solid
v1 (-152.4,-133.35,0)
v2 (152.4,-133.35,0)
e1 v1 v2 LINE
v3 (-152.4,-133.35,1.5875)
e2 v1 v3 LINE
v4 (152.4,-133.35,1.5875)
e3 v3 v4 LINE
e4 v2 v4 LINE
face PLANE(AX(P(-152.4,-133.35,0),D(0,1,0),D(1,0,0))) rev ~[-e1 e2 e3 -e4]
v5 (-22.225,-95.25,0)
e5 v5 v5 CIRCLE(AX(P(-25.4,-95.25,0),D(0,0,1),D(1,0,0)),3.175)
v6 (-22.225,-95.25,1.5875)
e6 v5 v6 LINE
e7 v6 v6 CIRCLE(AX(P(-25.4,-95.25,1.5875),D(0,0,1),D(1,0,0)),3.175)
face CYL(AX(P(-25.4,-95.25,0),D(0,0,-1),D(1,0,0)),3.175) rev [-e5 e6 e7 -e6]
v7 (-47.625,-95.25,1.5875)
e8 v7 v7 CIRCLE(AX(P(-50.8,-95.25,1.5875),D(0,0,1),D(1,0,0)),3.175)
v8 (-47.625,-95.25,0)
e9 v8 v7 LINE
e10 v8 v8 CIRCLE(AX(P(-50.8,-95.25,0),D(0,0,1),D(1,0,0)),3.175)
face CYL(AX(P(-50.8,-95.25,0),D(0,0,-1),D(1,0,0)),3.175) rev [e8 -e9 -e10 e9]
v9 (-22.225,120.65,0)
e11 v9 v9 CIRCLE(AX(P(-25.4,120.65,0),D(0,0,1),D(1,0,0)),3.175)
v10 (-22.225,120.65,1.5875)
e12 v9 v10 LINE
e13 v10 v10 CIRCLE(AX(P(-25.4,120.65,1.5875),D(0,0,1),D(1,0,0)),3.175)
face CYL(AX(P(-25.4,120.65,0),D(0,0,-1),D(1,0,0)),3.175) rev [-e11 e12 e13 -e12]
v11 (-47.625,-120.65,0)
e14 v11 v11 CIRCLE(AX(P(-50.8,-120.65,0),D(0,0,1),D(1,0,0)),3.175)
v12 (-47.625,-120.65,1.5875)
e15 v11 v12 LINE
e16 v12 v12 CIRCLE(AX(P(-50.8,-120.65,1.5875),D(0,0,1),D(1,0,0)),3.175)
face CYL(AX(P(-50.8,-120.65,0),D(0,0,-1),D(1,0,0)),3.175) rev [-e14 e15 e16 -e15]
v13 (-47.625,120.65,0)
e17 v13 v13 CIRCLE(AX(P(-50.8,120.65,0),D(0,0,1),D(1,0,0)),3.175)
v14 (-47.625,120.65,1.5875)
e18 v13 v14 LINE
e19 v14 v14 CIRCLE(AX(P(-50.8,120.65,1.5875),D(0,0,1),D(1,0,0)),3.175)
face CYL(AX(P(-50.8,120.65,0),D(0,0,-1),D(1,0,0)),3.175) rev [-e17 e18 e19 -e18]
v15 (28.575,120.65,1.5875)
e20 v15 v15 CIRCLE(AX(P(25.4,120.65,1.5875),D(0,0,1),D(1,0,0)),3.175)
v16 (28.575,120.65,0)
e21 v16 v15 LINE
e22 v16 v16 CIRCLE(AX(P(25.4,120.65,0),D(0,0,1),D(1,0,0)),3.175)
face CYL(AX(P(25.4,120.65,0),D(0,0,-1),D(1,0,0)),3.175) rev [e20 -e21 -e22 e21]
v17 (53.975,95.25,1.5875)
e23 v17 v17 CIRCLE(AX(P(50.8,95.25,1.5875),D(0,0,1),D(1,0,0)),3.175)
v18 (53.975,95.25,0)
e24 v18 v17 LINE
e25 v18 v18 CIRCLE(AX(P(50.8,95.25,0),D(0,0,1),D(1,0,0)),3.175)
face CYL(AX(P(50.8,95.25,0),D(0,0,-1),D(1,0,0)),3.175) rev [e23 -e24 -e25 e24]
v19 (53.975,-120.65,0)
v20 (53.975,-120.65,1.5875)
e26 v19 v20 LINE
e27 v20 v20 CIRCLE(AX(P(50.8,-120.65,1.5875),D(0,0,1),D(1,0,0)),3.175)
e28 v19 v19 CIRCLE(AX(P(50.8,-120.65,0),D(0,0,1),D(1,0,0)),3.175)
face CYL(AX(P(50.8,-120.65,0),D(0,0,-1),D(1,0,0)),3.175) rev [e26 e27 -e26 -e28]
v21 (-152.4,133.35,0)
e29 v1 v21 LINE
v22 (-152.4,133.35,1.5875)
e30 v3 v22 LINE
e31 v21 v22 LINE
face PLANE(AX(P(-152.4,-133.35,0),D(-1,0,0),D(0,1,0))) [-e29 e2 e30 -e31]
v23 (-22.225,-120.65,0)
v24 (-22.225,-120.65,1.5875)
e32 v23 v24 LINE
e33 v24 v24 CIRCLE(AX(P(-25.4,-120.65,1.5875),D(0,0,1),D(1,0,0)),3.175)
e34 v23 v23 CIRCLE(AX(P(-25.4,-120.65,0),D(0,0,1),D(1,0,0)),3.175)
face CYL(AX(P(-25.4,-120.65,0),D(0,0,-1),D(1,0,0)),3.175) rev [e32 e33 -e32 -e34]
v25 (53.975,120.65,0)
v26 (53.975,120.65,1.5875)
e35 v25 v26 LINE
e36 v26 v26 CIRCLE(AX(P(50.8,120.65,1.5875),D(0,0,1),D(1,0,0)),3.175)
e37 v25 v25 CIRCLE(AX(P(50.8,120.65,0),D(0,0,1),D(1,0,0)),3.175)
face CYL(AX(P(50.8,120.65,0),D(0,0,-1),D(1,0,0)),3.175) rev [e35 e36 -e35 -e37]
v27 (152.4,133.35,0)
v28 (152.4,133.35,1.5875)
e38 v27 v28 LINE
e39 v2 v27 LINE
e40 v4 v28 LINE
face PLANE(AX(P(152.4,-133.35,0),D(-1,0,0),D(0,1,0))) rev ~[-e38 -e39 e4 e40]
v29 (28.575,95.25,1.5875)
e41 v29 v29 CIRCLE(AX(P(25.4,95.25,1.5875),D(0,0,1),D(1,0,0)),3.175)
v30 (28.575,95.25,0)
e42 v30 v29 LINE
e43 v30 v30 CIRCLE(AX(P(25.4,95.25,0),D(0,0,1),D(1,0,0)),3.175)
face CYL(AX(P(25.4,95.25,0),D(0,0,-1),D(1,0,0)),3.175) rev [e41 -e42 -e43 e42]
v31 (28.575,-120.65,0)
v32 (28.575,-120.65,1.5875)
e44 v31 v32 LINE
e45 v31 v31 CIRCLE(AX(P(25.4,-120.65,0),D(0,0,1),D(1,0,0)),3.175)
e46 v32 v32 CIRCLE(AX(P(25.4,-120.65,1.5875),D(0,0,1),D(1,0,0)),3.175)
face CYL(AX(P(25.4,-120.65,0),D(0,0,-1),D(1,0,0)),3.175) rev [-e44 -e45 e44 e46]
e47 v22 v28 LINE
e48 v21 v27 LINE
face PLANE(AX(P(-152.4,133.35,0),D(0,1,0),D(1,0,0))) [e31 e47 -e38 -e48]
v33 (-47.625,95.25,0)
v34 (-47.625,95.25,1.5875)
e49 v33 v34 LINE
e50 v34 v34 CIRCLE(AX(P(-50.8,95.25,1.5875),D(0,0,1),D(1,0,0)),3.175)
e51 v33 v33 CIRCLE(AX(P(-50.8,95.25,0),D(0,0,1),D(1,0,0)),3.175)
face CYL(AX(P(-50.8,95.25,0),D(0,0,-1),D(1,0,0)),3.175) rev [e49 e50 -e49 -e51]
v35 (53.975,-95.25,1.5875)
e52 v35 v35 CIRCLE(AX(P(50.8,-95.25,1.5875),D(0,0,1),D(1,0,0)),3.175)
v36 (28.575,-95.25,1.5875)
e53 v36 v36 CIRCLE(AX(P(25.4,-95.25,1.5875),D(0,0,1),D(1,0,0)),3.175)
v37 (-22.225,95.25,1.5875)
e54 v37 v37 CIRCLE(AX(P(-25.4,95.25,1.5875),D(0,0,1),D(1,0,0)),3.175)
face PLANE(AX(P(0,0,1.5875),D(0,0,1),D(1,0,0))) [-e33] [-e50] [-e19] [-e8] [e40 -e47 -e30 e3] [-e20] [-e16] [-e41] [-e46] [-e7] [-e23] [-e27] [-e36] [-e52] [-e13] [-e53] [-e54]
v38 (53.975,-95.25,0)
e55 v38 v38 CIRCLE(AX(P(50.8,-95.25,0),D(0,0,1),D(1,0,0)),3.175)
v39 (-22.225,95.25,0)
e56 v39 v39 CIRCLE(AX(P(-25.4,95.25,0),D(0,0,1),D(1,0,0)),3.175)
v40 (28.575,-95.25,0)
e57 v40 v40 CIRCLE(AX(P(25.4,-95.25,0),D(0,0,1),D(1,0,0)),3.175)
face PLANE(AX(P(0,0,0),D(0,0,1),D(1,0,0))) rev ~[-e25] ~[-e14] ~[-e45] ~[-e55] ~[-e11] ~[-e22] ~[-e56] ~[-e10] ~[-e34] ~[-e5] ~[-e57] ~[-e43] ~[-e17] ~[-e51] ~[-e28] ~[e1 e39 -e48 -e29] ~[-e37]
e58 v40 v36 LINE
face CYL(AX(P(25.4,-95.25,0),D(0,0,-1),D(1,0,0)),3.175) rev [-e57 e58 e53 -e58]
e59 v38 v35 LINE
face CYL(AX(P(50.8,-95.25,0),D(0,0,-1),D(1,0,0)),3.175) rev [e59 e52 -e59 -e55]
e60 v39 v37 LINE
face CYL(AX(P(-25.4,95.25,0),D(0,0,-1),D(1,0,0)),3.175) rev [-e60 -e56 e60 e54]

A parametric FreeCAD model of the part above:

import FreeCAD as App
import Part
import Sketcher
from FreeCAD import Vector
Q = App.Units.Quantity


def add_polygon(sketch, points):
    """Adds a closed chain of lines whose ends are joined by coincident constraints."""
    first, n = sketch.GeometryCount, len(points)
    for a, b in zip(points, points[1:] + points[:1]):
        sketch.addGeometry(Part.LineSegment(App.Vector(*a, 0), App.Vector(*b, 0)), False)
    for i in range(n):
        sketch.addConstraint(Sketcher.Constraint("Coincident", first + i, 2, first + (i + 1) % n, 1))

doc = App.newDocument("Part")
body = doc.addObject("PartDesign::Body", "Body")

# Sketch on XY plane
sketch1 = body.newObject("Sketcher::SketchObject", "Sketch")
sketch1.AttachmentSupport = (doc.getObject("XY_Plane"), [""])
sketch1.MapMode = "FlatFace"
add_polygon(sketch1, [(-152.4, 133.35), (-152.4, -133.35), (152.4, -133.35), (152.4, 133.35)])  # lines 0-3
sketch1.addGeometry(Part.Circle(Vector(-50.8, -120.65, 0), Vector(0, 0, 1), 3.175), False)  # 4
sketch1.addGeometry(Part.Circle(Vector(-50.8, -95.25, 0), Vector(0, 0, 1), 3.175), False)  # 5
sketch1.addGeometry(Part.Circle(Vector(-25.4, -120.65, 0), Vector(0, 0, 1), 3.175), False)  # 6
sketch1.addGeometry(Part.Circle(Vector(-25.4, -95.25, 0), Vector(0, 0, 1), 3.175), False)  # 7
sketch1.addGeometry(Part.Circle(Vector(25.4, -120.65, 0), Vector(0, 0, 1), 3.175), False)  # 8
sketch1.addGeometry(Part.Circle(Vector(25.4, -95.25, 0), Vector(0, 0, 1), 3.175), False)  # 9
sketch1.addGeometry(Part.Circle(Vector(50.8, -120.65, 0), Vector(0, 0, 1), 3.175), False)  # 10
sketch1.addGeometry(Part.Circle(Vector(50.8, -95.25, 0), Vector(0, 0, 1), 3.175), False)  # 11
sketch1.addGeometry(Part.Circle(Vector(-50.8, 95.25, 0), Vector(0, 0, 1), 3.175), False)  # 12
sketch1.addGeometry(Part.Circle(Vector(-50.8, 120.65, 0), Vector(0, 0, 1), 3.175), False)  # 13
sketch1.addGeometry(Part.Circle(Vector(-25.4, 95.25, 0), Vector(0, 0, 1), 3.175), False)  # 14
sketch1.addGeometry(Part.Circle(Vector(-25.4, 120.65, 0), Vector(0, 0, 1), 3.175), False)  # 15
sketch1.addGeometry(Part.Circle(Vector(25.4, 95.25, 0), Vector(0, 0, 1), 3.175), False)  # 16
sketch1.addGeometry(Part.Circle(Vector(25.4, 120.65, 0), Vector(0, 0, 1), 3.175), False)  # 17
sketch1.addGeometry(Part.Circle(Vector(50.8, 95.25, 0), Vector(0, 0, 1), 3.175), False)  # 18
sketch1.addGeometry(Part.Circle(Vector(50.8, 120.65, 0), Vector(0, 0, 1), 3.175), False)  # 19
sketch1.addConstraint([
    Sketcher.Constraint("Vertical", 0),
    Sketcher.Constraint("Horizontal", 1),
    Sketcher.Constraint("Vertical", 2),
    Sketcher.Constraint("Horizontal", 3),
    Sketcher.Constraint("Equal", 4, 5),
    Sketcher.Constraint("Equal", 5, 6),
    Sketcher.Constraint("Equal", 6, 7),
    Sketcher.Constraint("Equal", 7, 8),
    Sketcher.Constraint("Equal", 8, 9),
    Sketcher.Constraint("Equal", 9, 10),
    Sketcher.Constraint("Equal", 10, 11),
    Sketcher.Constraint("Equal", 11, 12),
    Sketcher.Constraint("Equal", 12, 13),
    Sketcher.Constraint("Equal", 13, 14),
    Sketcher.Constraint("Equal", 14, 15),
    Sketcher.Constraint("Equal", 15, 16),
    Sketcher.Constraint("Equal", 16, 17),
    Sketcher.Constraint("Equal", 17, 18),
    Sketcher.Constraint("Equal", 18, 19),
    Sketcher.Constraint("Symmetric", 11, 3, 12, 3, -1, 1),
    Sketcher.Constraint("Symmetric", 10, 3, 13, 3, -1, 1),
    Sketcher.Constraint("Symmetric", 9, 3, 14, 3, -1, 1),
    Sketcher.Constraint("Symmetric", 8, 3, 15, 3, -1, 1),
    Sketcher.Constraint("Symmetric", 7, 3, 16, 3, -1, 1),
    Sketcher.Constraint("Symmetric", 6, 3, 17, 3, -1, 1),
    Sketcher.Constraint("Symmetric", 5, 3, 18, 3, -1, 1),
    Sketcher.Constraint("Symmetric", 4, 3, 19, 3, -1, 1),
    Sketcher.Constraint("Symmetric", 0, 2, 2, 2, -1, 1),
    Sketcher.Constraint("Symmetric", 6, 3, 8, 3, -2),
    Sketcher.Constraint("Symmetric", 7, 3, 9, 3, -2),
    Sketcher.Constraint("Symmetric", 4, 3, 10, 3, -2),
    Sketcher.Constraint("Symmetric", 5, 3, 11, 3, -2),
    Sketcher.Constraint("Horizontal", 4, 3, 6, 3),
    Sketcher.Constraint("Horizontal", 5, 3, 7, 3),
    Sketcher.Constraint("Vertical", 4, 3, 5, 3),
    Sketcher.Constraint("Vertical", 6, 3, 7, 3),
    Sketcher.Constraint("Diameter", 4, Q("0.25 in")),
    Sketcher.Constraint("DistanceX", 1, 1, 1, 2, Q("12 in")),
    Sketcher.Constraint("DistanceY", 0, 2, 0, 1, Q("10.5 in")),
    Sketcher.Constraint("DistanceX", 4, 3, -1, 1, Q("2 in")),
    Sketcher.Constraint("DistanceX", 6, 3, -1, 1, Q("1 in")),
    Sketcher.Constraint("DistanceY", 4, 3, 5, 3, Q("1 in")),
    Sketcher.Constraint("DistanceY", 5, 3, 12, 3, Q("7.5 in")),
])
pad1 = body.newObject("PartDesign::Pad", "Pad")
pad1.Profile = sketch1
pad1.Length = Q("0.0625 in")

doc.recompute()
